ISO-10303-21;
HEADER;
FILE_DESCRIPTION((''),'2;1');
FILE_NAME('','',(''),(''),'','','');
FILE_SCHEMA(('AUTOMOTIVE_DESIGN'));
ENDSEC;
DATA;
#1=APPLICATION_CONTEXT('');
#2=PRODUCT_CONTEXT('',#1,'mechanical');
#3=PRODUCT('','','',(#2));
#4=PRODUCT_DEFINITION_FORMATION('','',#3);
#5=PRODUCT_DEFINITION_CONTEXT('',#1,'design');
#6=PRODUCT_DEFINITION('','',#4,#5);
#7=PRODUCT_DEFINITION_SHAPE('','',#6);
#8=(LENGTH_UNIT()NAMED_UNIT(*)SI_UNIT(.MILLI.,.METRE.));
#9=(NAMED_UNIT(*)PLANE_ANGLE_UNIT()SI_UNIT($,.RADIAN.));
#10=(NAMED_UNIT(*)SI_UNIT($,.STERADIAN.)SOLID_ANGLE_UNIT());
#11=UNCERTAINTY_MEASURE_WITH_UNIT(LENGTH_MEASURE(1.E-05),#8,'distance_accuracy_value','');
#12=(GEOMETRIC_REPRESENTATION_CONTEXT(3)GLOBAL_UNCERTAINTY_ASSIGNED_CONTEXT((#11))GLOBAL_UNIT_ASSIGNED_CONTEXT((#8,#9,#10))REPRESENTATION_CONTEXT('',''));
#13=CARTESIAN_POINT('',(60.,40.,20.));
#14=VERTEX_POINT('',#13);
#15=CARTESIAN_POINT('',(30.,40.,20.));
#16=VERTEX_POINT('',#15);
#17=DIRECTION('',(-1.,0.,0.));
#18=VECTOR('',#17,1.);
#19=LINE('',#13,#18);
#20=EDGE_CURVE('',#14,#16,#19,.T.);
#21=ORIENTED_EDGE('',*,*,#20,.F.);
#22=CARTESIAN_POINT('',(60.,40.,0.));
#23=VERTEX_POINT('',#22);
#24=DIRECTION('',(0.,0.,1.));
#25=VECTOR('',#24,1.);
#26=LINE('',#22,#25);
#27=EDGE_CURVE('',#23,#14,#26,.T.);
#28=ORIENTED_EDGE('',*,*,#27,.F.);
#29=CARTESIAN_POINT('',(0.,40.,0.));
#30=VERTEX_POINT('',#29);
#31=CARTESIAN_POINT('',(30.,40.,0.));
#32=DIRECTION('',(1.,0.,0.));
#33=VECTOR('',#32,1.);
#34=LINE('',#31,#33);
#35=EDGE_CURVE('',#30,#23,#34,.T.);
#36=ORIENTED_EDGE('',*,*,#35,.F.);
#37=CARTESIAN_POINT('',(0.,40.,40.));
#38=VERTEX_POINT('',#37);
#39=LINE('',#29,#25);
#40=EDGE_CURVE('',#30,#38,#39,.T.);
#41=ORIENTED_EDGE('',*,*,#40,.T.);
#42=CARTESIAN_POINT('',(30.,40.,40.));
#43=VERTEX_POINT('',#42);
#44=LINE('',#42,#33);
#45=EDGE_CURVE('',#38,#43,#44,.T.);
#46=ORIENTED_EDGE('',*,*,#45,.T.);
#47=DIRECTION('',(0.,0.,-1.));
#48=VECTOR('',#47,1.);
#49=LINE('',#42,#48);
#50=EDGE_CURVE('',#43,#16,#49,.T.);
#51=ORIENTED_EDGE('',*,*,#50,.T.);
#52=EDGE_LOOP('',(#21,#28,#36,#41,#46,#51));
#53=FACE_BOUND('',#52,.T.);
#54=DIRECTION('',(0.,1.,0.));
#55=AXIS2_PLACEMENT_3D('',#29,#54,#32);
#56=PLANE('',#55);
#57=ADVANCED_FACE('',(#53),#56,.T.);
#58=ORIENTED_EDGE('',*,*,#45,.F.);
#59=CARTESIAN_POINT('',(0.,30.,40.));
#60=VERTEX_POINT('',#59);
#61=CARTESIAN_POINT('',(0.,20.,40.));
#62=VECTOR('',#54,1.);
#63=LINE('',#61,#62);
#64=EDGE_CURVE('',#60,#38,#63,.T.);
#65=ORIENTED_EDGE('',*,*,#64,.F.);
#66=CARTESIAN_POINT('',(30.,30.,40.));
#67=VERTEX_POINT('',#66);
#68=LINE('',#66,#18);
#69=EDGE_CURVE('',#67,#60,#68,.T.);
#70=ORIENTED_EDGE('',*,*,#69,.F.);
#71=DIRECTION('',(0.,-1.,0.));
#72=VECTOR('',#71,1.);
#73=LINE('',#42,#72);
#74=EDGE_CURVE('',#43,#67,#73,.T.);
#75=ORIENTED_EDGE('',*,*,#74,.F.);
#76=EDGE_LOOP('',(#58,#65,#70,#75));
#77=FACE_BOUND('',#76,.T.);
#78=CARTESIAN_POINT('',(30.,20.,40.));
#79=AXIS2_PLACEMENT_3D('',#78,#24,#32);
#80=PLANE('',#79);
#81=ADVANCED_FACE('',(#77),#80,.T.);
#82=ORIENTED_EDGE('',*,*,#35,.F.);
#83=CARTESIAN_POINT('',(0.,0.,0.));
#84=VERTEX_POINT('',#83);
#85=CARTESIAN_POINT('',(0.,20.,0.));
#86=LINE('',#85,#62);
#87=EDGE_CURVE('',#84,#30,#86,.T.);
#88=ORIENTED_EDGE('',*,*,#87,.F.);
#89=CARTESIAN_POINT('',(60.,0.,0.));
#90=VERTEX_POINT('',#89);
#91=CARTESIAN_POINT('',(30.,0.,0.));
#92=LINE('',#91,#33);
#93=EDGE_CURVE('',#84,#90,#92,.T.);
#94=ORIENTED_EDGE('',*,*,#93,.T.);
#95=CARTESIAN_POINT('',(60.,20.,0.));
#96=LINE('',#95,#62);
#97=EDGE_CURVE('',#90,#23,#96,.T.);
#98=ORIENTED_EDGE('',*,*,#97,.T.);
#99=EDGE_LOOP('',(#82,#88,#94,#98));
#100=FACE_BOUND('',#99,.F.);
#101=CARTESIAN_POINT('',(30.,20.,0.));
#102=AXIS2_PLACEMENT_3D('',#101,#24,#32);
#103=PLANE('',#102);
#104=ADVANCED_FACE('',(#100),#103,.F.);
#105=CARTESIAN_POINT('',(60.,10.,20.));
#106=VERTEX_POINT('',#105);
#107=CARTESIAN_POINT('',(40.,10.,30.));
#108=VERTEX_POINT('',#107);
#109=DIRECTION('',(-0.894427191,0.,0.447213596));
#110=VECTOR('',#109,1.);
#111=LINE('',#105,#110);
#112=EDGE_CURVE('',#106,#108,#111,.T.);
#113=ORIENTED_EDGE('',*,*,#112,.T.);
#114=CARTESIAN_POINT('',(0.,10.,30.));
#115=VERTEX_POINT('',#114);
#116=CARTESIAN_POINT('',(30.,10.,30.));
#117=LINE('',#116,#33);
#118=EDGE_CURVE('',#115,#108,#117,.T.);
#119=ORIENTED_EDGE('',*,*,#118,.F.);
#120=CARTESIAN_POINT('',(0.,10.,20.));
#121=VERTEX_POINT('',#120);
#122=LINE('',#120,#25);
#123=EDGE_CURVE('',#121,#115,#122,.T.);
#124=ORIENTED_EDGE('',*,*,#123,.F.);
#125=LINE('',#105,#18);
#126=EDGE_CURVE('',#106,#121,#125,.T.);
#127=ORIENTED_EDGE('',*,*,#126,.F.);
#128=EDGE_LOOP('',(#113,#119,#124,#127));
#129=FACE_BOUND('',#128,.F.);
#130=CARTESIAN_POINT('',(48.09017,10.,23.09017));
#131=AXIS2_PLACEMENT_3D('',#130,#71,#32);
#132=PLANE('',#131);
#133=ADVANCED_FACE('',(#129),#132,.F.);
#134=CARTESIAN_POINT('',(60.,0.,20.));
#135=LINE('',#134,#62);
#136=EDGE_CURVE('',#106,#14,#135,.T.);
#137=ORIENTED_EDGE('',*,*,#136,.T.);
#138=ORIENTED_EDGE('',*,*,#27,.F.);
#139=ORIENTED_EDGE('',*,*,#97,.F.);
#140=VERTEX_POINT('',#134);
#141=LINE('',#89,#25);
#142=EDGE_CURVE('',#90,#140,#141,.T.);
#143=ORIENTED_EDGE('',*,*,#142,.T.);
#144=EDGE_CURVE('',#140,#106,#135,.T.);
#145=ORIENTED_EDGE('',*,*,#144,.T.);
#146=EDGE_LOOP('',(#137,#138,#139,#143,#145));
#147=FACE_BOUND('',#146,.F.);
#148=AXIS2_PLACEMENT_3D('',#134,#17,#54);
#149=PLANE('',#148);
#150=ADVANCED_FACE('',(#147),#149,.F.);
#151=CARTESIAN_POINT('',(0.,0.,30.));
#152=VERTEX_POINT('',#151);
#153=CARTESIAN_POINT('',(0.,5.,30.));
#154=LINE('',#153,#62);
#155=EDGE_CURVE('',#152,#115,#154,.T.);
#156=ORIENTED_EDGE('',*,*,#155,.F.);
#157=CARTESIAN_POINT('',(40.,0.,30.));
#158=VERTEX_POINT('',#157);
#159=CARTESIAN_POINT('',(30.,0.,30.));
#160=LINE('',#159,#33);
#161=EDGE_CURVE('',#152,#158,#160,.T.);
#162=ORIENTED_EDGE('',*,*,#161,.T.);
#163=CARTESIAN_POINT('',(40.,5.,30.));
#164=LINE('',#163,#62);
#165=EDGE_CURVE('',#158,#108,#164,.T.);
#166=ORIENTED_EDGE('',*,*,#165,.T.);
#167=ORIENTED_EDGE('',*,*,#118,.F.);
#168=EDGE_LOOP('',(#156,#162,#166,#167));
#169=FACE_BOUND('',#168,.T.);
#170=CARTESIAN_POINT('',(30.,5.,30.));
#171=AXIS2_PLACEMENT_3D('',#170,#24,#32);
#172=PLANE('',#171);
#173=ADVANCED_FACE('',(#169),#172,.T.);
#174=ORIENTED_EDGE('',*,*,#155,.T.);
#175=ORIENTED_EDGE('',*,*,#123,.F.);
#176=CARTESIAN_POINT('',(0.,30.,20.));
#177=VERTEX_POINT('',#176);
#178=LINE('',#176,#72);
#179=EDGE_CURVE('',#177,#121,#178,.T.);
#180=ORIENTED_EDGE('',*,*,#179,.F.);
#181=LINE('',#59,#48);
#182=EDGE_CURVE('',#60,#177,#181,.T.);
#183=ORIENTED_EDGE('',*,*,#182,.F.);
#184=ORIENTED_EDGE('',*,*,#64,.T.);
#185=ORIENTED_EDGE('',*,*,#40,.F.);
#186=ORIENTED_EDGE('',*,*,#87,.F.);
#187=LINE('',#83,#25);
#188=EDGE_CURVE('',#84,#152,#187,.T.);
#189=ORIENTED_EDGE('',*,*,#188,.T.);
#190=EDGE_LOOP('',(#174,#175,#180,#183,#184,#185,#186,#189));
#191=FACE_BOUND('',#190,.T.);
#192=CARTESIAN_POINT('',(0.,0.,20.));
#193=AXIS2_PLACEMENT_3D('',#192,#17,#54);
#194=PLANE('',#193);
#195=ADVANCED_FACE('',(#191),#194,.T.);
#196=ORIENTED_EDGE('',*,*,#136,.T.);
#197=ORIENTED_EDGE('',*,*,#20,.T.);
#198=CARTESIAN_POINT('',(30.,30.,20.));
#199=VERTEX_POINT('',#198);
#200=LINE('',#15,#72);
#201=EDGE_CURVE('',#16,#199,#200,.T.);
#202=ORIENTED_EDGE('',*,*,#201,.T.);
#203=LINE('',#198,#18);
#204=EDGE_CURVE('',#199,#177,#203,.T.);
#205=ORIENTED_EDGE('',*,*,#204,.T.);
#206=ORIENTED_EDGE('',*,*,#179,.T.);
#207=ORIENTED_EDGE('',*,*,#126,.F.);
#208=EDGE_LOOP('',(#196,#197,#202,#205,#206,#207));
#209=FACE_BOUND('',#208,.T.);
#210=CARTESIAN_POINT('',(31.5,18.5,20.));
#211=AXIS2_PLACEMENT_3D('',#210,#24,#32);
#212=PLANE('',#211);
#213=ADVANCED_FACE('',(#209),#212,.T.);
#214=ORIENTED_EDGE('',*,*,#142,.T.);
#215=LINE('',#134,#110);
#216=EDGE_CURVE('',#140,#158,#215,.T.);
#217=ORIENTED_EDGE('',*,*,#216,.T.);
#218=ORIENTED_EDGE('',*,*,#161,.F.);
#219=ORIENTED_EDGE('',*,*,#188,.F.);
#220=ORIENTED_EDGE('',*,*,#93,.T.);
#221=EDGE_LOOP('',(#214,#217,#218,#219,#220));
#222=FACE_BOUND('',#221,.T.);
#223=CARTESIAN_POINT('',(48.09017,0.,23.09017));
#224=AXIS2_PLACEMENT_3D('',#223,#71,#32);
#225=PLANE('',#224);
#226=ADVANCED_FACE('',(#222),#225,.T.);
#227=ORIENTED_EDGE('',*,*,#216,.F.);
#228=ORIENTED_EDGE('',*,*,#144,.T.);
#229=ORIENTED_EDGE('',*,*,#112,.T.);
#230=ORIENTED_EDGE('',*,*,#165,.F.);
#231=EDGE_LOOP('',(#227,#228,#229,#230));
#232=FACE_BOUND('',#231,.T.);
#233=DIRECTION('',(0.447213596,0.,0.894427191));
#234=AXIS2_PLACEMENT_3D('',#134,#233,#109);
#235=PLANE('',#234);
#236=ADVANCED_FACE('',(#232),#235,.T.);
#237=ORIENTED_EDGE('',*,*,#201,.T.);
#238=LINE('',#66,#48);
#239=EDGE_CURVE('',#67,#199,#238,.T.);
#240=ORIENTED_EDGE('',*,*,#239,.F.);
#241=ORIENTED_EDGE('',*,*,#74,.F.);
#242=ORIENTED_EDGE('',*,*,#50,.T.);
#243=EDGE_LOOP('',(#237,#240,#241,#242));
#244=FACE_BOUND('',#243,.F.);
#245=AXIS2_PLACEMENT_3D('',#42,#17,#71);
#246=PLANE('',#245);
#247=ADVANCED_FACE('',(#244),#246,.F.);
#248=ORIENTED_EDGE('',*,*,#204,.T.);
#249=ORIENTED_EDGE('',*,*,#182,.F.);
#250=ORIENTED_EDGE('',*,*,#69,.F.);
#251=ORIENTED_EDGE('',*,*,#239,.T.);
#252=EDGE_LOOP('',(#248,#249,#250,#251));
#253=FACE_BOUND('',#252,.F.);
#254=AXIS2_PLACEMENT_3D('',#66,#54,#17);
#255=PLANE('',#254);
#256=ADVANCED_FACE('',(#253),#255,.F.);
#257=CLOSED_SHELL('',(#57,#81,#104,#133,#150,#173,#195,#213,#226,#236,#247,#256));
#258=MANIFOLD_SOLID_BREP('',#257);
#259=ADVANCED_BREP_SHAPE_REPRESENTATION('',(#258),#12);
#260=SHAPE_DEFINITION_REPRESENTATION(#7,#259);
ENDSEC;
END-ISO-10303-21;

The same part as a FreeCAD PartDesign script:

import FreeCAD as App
import Part
import Sketcher

V = App.Vector


def add_polygon(sketch, points):
    """Adds a closed chain of lines whose ends are joined by coincident constraints."""
    first, n = sketch.GeometryCount, len(points)
    for a, b in zip(points, points[1:] + points[:1]):
        sketch.addGeometry(Part.LineSegment(App.Vector(*a, 0), App.Vector(*b, 0)), False)
    for i in range(n):
        sketch.addConstraint(Sketcher.Constraint("Coincident", first + i, 2, first + (i + 1) % n, 1))

doc = App.newDocument("Part")
params = doc.addObject("Spreadsheet::Sheet", "Params")
for row, (alias, value) in enumerate([
    ("sketch1_width", "60 mm"),
    ("sketch1_height", "40 mm"),
    ("pad1_length", "40 mm"),
    ("sketch2_width", "30 mm"),
    ("sketch2_height", "10 mm"),
    ("pocket1_length", "20 mm"),
    ("sketch3_width", "60 mm"),
    ("sketch3_height", "10 mm"),
    ("pocket2_length", "10 mm"),
    ("sketch4_width", "60 mm"),
    ("sketch4_height", "10 mm"),
    ("pad2_length", "10 mm"),
    ("sketch5_width", "20 mm"),
    ("sketch5_height", "10 mm"),
    ("pocket3_length", "10 mm"),
    ("sketch6_width", "20 mm"),
    ("sketch6_height", "10 mm"),
    ("pad3_length", "10 mm"),
], start=1):
    params.set(f"A{row}", alias)
    params.set(f"B{row}", "=" + value)
    params.setAlias(f"B{row}", alias)

body = doc.addObject("PartDesign::Body", "Body")

# Sketch on XY plane
sketch1 = doc.addObject("Sketcher::SketchObject", "Sketch")
body.addObject(sketch1)
sketch1.AttachmentSupport = (doc.XY_Plane, [""])
sketch1.MapMode = "FlatFace"
add_polygon(sketch1, [(0, 40), (0, 0), (60, 0), (60, 40)])  # lines 0-3
sketch1.addConstraint(Sketcher.Constraint("Vertical", 0))
sketch1.addConstraint(Sketcher.Constraint("Horizontal", 1))
sketch1.addConstraint(Sketcher.Constraint("Vertical", 2))
sketch1.addConstraint(Sketcher.Constraint("Horizontal", 3))
sketch1.addConstraint(Sketcher.Constraint("Coincident", 0, 2, -1, 1))
sketch1.addConstraint(Sketcher.Constraint("DistanceX", 1, 1, 1, 2, 60.0))
sketch1.addConstraint(Sketcher.Constraint("DistanceY", 0, 2, 0, 1, 40.0))
sketch1.setExpression("Constraints[9]", "Params.sketch1_width")
sketch1.setExpression("Constraints[10]", "Params.sketch1_height")
pad1 = doc.addObject("PartDesign::Pad", "Pad")
body.addObject(pad1)
pad1.Profile = sketch1
pad1.setExpression("Length", "Params.pad1_length")

# Sketch on XY plane
sketch2 = doc.addObject("Sketcher::SketchObject", "Sketch001")
body.addObject(sketch2)
sketch2.AttachmentSupport = (doc.XY_Plane, [""])
sketch2.MapMode = "FlatFace"
sketch2.AttachmentOffset = App.Placement(V(0, 0, 40), App.Rotation())
add_polygon(sketch2, [(60, 40), (30, 40), (30, 30), (0, 30), (0, 0), (60, 0)])  # lines 0-5
sketch2.addConstraint(Sketcher.Constraint("Horizontal", 0))
sketch2.addConstraint(Sketcher.Constraint("Vertical", 1))
sketch2.addConstraint(Sketcher.Constraint("Horizontal", 2))
sketch2.addConstraint(Sketcher.Constraint("Vertical", 3))
sketch2.addConstraint(Sketcher.Constraint("Horizontal", 4))
sketch2.addConstraint(Sketcher.Constraint("Vertical", 5))
sketch2.addConstraint(Sketcher.Constraint("Coincident", 3, 2, -1, 1))
sketch2.addConstraint(Sketcher.Constraint("Equal", 0, 2))
sketch2.addConstraint(Sketcher.Constraint("Equal", 2, 3))
sketch2.addConstraint(Sketcher.Constraint("DistanceX", 0, 2, 0, 1, 30.0))
sketch2.addConstraint(Sketcher.Constraint("DistanceY", 1, 2, 1, 1, 10.0))
sketch2.setExpression("Constraints[15]", "Params.sketch2_width")
sketch2.setExpression("Constraints[16]", "Params.sketch2_height")
pocket1 = doc.addObject("PartDesign::Pocket", "Pocket")
body.addObject(pocket1)
pocket1.Profile = sketch2
pocket1.setExpression("Length", "Params.pocket1_length")

# Sketch on XY plane
sketch3 = doc.addObject("Sketcher::SketchObject", "Sketch002")
body.addObject(sketch3)
sketch3.AttachmentSupport = (doc.XY_Plane, [""])
sketch3.MapMode = "FlatFace"
sketch3.AttachmentOffset = App.Placement(V(0, 0, 40), App.Rotation())
add_polygon(sketch3, [(0, 10), (0, 0), (60, 0), (60, 10)])  # lines 0-3
sketch3.addConstraint(Sketcher.Constraint("Vertical", 0))
sketch3.addConstraint(Sketcher.Constraint("Horizontal", 1))
sketch3.addConstraint(Sketcher.Constraint("Vertical", 2))
sketch3.addConstraint(Sketcher.Constraint("Horizontal", 3))
sketch3.addConstraint(Sketcher.Constraint("Coincident", 0, 2, -1, 1))
sketch3.addConstraint(Sketcher.Constraint("DistanceX", 1, 1, 1, 2, 60.0))
sketch3.addConstraint(Sketcher.Constraint("DistanceY", 0, 2, 0, 1, 10.0))
sketch3.setExpression("Constraints[9]", "Params.sketch3_width")
sketch3.setExpression("Constraints[10]", "Params.sketch3_height")
pocket2 = doc.addObject("PartDesign::Pocket", "Pocket001")
body.addObject(pocket2)
pocket2.Profile = sketch3
pocket2.setExpression("Length", "Params.pocket2_length")
pocket2.Reversed = True

# Sketch on XY plane
sketch4 = doc.addObject("Sketcher::SketchObject", "Sketch003")
body.addObject(sketch4)
sketch4.AttachmentSupport = (doc.XY_Plane, [""])
sketch4.MapMode = "FlatFace"
sketch4.AttachmentOffset = App.Placement(V(0, 0, 20), App.Rotation())
add_polygon(sketch4, [(0, 10), (0, 0), (60, 0), (60, 10)])  # lines 0-3
sketch4.addConstraint(Sketcher.Constraint("Vertical", 0))
sketch4.addConstraint(Sketcher.Constraint("Horizontal", 1))
sketch4.addConstraint(Sketcher.Constraint("Vertical", 2))
sketch4.addConstraint(Sketcher.Constraint("Horizontal", 3))
sketch4.addConstraint(Sketcher.Constraint("Coincident", 0, 2, -1, 1))
sketch4.addConstraint(Sketcher.Constraint("DistanceX", 1, 1, 1, 2, 60.0))
sketch4.addConstraint(Sketcher.Constraint("DistanceY", 0, 2, 0, 1, 10.0))
sketch4.setExpression("Constraints[9]", "Params.sketch4_width")
sketch4.setExpression("Constraints[10]", "Params.sketch4_height")
pad2 = doc.addObject("PartDesign::Pad", "Pad001")
body.addObject(pad2)
pad2.Profile = sketch4
pad2.setExpression("Length", "Params.pad2_length")

# Sketch on XY plane
sketch5 = doc.addObject("Sketcher::SketchObject", "Sketch004")
body.addObject(sketch5)
sketch5.AttachmentSupport = (doc.XY_Plane, [""])
sketch5.MapMode = "FlatFace"
sketch5.AttachmentOffset = App.Placement(V(0, 0, 30), App.Rotation())
add_polygon(sketch5, [(40, 10), (40, 0), (60, 0), (60, 10)])  # lines 0-3
sketch5.addConstraint(Sketcher.Constraint("Vertical", 0))
sketch5.addConstraint(Sketcher.Constraint("Horizontal", 1))
sketch5.addConstraint(Sketcher.Constraint("Vertical", 2))
sketch5.addConstraint(Sketcher.Constraint("Horizontal", 3))
sketch5.addConstraint(Sketcher.Constraint("PointOnObject", 0, 2, -1))
sketch5.addConstraint(Sketcher.Constraint("DistanceX", 1, 1, 1, 2, 20.0))
sketch5.addConstraint(Sketcher.Constraint("DistanceY", 0, 2, 0, 1, 10.0))
sketch5.addConstraint(Sketcher.Constraint("DistanceX", -1, 1, 0, 2, 40.0))
sketch5.setExpression("Constraints[9]", "Params.sketch5_width")
sketch5.setExpression("Constraints[10]", "Params.sketch5_height")
pocket3 = doc.addObject("PartDesign::Pocket", "Pocket002")
body.addObject(pocket3)
pocket3.Profile = sketch5
pocket3.setExpression("Length", "Params.pocket3_length")

# Sketch on XZ plane
sketch6 = doc.addObject("Sketcher::SketchObject", "Sketch005")
body.addObject(sketch6)
sketch6.AttachmentSupport = (doc.XZ_Plane, [""])
sketch6.MapMode = "FlatFace"
add_polygon(sketch6, [(60, 20), (40, 30), (40, 20)])  # lines 0-2
sketch6.addConstraint(Sketcher.Constraint("Vertical", 1))
sketch6.addConstraint(Sketcher.Constraint("Horizontal", 2))
sketch6.addConstraint(Sketcher.Constraint("DistanceX", 2, 1, 2, 2, 20.0))
sketch6.addConstraint(Sketcher.Constraint("DistanceY", 1, 2, 1, 1, 10.0))
sketch6.addConstraint(Sketcher.Constraint("DistanceX", -1, 1, 0, 2, 40.0))
sketch6.addConstraint(Sketcher.Constraint("DistanceY", -1, 1, 0, 2, 30.0))
sketch6.setExpression("Constraints[5]", "Params.sketch6_width")
sketch6.setExpression("Constraints[6]", "Params.sketch6_height")
pad3 = doc.addObject("PartDesign::Pad", "Pad002")
body.addObject(pad3)
pad3.Profile = sketch6
pad3.setExpression("Length", "Params.pad3_length")
pad3.Reversed = True

doc.recompute()
